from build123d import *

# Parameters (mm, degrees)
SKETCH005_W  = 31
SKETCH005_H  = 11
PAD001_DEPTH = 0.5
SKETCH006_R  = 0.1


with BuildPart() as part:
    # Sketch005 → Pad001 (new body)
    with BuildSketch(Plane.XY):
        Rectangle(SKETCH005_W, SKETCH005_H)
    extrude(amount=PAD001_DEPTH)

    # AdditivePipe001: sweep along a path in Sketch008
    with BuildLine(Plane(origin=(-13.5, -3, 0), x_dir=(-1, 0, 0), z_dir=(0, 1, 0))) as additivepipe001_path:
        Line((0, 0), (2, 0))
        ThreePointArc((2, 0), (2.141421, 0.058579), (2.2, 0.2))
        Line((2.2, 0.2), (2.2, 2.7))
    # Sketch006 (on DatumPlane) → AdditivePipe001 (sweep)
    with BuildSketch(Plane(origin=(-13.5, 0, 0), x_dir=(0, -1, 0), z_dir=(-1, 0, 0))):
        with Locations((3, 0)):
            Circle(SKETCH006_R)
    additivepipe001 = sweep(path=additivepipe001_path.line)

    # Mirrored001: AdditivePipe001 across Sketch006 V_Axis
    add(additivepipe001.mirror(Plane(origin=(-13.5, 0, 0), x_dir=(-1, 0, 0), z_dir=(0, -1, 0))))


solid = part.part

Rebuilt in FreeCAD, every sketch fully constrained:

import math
import FreeCAD as App
import Part
import Sketcher

V = App.Vector


def add_polygon(sketch, points):
    """Adds a closed chain of lines whose ends are joined by coincident constraints."""
    first, n = sketch.GeometryCount, len(points)
    for a, b in zip(points, points[1:] + points[:1]):
        sketch.addGeometry(Part.LineSegment(App.Vector(*a, 0), App.Vector(*b, 0)), False)
    for i in range(n):
        sketch.addConstraint(Sketcher.Constraint("Coincident", first + i, 2, first + (i + 1) % n, 1))

doc = App.newDocument("Part")
body = doc.addObject("PartDesign::Body", "Body")

# Sketch on XY plane
sketch1 = body.newObject("Sketcher::SketchObject", "Sketch")
sketch1.AttachmentSupport = (doc.getObject("XY_Plane"), [""])
sketch1.MapMode = "FlatFace"
add_polygon(sketch1, [(-16, 6), (-16, -6), (16, -6), (16, 6)])  # lines 0-3
sketch1.addConstraint(Sketcher.Constraint("Vertical", 0))
sketch1.addConstraint(Sketcher.Constraint("Horizontal", 1))
sketch1.addConstraint(Sketcher.Constraint("Vertical", 2))
sketch1.addConstraint(Sketcher.Constraint("Horizontal", 3))
sketch1.addConstraint(Sketcher.Constraint("Symmetric", 0, 2, 2, 2, -1, 1))
sketch1.addConstraint(Sketcher.Constraint("DistanceX", 1, 1, 1, 2, 31.0))
sketch1.addConstraint(Sketcher.Constraint("DistanceY", 0, 2, 0, 1, 11.0))
pad1 = body.newObject("PartDesign::Pad", "Pad")
pad1.Profile = sketch1
pad1.Length = 0.5

# Sketch on YZ plane
sketch2 = body.newObject("Sketcher::SketchObject", "Sketch001")
sketch2.AttachmentSupport = (doc.getObject("YZ_Plane"), [""])
sketch2.MapMode = "FlatFace"
sketch2.AttachmentOffset = App.Placement(V(0, 0, -13.5), App.Rotation())
sketch2.addGeometry(Part.Circle(V(-3, 0, 0), V(0, 0, 1), 0.1), False)
sketch2.addConstraint(Sketcher.Constraint("PointOnObject", 0, 3, -1))
sketch2.addConstraint(Sketcher.Constraint("Diameter", 0, 0.2))
sketch2.addConstraint(Sketcher.Constraint("DistanceX", 0, 3, -1, 1, 3.0))

# Sketch on XZ plane
sketch3 = body.newObject("Sketcher::SketchObject", "Sketch002")
sketch3.AttachmentSupport = (doc.getObject("XZ_Plane"), [""])
sketch3.MapMode = "FlatFace"
sketch3.AttachmentOffset = App.Placement(V(0, 0, 3), App.Rotation())
sketch3.addGeometry(Part.LineSegment(V(-13.5, 0, 0), V(-15.5, 0, 0)), False)
sketch3.addGeometry(Part.ArcOfCircle(Part.Circle(V(-15.5, 0.2, 0), V(0, 0, 1), 0.2), math.radians(-180), math.radians(-90)), False)
sketch3.addGeometry(Part.LineSegment(V(-15.7, 0.2, 0), V(-15.7, 2.7, 0)), False)
sketch3.addConstraint(Sketcher.Constraint("Coincident", 0, 2, 1, 2))
sketch3.addConstraint(Sketcher.Constraint("Coincident", 1, 1, 2, 1))
sketch3.addConstraint(Sketcher.Constraint("Horizontal", 0))
sketch3.addConstraint(Sketcher.Constraint("Vertical", 2))
sketch3.addConstraint(Sketcher.Constraint("PointOnObject", 0, 1, -1))
sketch3.addConstraint(Sketcher.Constraint("Vertical", 1, 3, 0, 2))
sketch3.addConstraint(Sketcher.Constraint("Radius", 1, 0.200001))
sketch3.addConstraint(Sketcher.Constraint("DistanceX", 0, 2, 0, 1, 2.0))
sketch3.addConstraint(Sketcher.Constraint("DistanceY", 2, 1, 2, 2, 2.5))
sketch3.addConstraint(Sketcher.Constraint("DistanceX", 1, 3, -1, 1, 15.499999))
sketch3.addConstraint(Sketcher.Constraint("DistanceY", -1, 1, 1, 1, 0.2))
doc.recompute()

additivepipe = body.newObject("PartDesign::AdditivePipe", "AdditivePipe")
additivepipe.Profile = sketch2
additivepipe.Spine = (sketch3, ["Edge1", "Edge2", "Edge3"])
doc.recompute()

mirrored = body.newObject("PartDesign::Mirrored", "Mirrored")
mirrored.Originals = [additivepipe]
mirrored.MirrorPlane = (doc.getObject("XZ_Plane"), [""])
body.Tip = mirrored

doc.recompute()
